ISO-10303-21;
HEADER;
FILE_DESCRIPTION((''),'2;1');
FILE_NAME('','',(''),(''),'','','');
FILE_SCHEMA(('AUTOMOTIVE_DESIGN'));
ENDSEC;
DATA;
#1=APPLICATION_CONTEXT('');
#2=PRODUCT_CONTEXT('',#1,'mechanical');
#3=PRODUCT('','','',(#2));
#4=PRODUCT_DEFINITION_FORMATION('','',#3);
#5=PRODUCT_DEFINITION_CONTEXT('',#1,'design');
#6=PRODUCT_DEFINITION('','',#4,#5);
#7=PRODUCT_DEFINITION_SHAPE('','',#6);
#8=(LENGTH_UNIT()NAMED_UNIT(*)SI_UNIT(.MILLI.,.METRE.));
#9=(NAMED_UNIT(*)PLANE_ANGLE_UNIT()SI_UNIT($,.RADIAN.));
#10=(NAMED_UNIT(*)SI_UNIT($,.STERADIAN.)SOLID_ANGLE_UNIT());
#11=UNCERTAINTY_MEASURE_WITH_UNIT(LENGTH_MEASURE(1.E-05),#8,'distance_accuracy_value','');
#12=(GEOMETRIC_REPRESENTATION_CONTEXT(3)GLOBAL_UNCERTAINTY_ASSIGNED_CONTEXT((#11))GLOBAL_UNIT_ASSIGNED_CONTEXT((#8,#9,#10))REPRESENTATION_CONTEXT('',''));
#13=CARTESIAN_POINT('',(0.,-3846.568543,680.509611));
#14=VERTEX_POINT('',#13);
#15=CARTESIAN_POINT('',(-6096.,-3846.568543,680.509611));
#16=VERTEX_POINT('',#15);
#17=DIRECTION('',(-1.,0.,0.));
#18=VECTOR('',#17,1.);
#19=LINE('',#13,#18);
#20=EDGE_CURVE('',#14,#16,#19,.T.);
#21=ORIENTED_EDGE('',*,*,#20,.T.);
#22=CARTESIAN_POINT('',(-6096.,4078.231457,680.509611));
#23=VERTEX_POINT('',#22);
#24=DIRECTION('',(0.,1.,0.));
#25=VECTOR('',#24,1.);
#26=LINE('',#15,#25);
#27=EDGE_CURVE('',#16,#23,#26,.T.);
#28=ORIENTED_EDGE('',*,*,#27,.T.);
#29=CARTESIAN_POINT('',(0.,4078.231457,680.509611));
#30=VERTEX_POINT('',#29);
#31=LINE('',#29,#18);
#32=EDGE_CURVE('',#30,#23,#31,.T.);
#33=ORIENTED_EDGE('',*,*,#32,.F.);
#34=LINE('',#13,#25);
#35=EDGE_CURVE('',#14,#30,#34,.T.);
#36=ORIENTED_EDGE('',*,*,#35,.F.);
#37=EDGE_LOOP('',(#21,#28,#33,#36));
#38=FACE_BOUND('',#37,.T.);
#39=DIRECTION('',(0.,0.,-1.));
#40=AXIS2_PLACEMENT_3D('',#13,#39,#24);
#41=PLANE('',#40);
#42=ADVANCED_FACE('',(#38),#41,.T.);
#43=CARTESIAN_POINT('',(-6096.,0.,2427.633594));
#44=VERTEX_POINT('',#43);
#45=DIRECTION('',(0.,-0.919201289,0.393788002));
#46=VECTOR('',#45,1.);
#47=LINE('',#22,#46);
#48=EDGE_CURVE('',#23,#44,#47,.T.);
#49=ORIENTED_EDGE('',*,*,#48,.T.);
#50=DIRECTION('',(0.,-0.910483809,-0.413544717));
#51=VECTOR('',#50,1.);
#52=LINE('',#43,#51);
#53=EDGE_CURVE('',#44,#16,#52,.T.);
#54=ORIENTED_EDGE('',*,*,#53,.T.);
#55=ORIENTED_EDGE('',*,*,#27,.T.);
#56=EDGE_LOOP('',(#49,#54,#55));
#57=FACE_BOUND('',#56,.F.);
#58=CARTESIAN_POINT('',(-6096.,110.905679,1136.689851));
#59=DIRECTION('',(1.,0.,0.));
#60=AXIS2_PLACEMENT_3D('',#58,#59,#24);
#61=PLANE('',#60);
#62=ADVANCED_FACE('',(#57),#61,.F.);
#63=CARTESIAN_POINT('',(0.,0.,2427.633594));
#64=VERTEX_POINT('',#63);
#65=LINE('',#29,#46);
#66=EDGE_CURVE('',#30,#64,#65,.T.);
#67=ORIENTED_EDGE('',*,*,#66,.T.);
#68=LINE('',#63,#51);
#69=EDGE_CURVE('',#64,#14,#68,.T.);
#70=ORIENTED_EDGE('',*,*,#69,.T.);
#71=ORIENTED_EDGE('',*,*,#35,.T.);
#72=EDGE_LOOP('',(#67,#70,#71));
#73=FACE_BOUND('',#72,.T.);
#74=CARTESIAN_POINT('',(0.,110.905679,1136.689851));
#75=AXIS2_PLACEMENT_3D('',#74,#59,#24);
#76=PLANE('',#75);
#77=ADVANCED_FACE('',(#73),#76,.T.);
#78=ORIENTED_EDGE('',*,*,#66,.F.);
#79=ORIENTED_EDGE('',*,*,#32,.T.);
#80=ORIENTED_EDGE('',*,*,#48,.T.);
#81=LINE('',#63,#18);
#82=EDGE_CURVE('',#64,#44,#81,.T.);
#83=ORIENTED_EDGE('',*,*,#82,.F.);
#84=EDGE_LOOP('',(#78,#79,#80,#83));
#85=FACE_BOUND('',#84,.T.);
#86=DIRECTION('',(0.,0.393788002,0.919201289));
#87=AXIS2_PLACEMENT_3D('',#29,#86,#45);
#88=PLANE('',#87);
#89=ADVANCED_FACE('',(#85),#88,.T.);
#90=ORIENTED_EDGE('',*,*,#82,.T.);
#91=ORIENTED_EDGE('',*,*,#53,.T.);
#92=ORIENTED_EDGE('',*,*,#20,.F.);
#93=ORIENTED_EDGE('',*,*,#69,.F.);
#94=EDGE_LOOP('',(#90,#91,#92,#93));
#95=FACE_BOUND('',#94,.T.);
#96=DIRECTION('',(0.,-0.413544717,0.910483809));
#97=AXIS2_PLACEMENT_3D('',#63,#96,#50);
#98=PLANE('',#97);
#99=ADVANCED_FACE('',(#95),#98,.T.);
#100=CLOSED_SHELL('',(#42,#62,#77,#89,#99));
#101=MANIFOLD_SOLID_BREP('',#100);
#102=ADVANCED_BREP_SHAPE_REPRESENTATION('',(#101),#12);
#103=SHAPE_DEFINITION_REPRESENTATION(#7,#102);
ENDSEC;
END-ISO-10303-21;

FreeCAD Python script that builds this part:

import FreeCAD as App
import Part
import Sketcher
from FreeCAD import Vector
Q = App.Units.Quantity


def add_polygon(sketch, points):
    """Adds a closed chain of lines whose ends are joined by coincident constraints."""
    first, n = sketch.GeometryCount, len(points)
    for a, b in zip(points, points[1:] + points[:1]):
        sketch.addGeometry(Part.LineSegment(App.Vector(*a, 0), App.Vector(*b, 0)), False)
    for i in range(n):
        sketch.addConstraint(Sketcher.Constraint("Coincident", first + i, 2, first + (i + 1) % n, 1))

doc = App.newDocument("Part")
body = doc.addObject("PartDesign::Body", "Body")

sketch1 = body.newObject("Sketcher::SketchObject", "Sketch")
sketch1.AttachmentSupport = (doc.getObject("YZ_Plane"), [""])
sketch1.MapMode = "FlatFace"
add_polygon(sketch1, [(0, 2427.633594), (-3846.568543, 680.509611), (4078.231457, 680.509611)])
sketch1.addConstraint([
    Sketcher.Constraint("Horizontal", 1),
    Sketcher.Constraint("PointOnObject", 2, 2, -2),
    Sketcher.Constraint("DistanceX", 1, 1, 1, 2, Q("312 in")),
    Sketcher.Constraint("DistanceY", -1, 1, 0, 2, Q("680.509611 mm")),
    Sketcher.Constraint("Distance", 0, Q("4224.752273 mm")),
    Sketcher.Constraint("Distance", 2, Q("4436.712074 mm")),
])
pad1 = body.newObject("PartDesign::Pad", "Pad")
pad1.Profile = sketch1
pad1.Length = Q("240 in")
pad1.Reversed = True

doc.recompute()
